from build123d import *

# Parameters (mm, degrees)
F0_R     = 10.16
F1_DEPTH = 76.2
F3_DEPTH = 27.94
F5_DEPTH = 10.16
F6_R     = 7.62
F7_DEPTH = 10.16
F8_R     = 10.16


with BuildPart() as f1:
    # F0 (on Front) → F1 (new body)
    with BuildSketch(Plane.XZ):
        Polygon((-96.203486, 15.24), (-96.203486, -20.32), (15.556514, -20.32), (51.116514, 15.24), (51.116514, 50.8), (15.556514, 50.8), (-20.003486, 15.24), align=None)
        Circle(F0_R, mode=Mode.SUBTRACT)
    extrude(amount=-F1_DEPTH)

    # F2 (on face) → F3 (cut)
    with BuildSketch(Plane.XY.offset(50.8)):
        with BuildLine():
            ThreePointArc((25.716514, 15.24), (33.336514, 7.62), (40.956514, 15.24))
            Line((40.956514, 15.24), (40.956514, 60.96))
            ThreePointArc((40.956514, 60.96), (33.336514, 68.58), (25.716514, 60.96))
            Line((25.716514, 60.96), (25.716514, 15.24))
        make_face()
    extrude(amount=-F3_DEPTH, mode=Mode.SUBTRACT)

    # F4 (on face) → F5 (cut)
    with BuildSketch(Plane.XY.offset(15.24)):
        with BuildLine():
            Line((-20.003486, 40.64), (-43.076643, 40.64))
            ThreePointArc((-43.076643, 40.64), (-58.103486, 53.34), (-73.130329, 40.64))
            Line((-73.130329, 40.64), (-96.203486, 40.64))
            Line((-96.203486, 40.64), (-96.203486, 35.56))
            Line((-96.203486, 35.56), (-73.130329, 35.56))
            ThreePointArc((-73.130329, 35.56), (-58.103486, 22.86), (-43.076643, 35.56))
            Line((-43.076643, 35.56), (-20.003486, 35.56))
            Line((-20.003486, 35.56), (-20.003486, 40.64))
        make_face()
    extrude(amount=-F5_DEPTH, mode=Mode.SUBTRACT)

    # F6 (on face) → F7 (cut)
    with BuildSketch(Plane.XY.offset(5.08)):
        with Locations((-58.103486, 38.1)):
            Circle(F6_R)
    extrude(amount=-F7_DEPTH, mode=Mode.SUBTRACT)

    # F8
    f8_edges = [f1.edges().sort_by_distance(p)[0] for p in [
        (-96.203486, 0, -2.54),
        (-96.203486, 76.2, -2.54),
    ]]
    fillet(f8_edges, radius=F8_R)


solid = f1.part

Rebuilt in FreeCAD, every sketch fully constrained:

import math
import FreeCAD as App
import Part
import Sketcher

V = App.Vector
Q = App.Units.Quantity


def edges_at(feature, points):
    """Names of the edges that pass closest to the given points."""
    edges = feature.Shape.Edges
    near = lambda p: min(range(len(edges)), key=lambda i: edges[i].distToShape(Part.Vertex(*p))[0])
    return sorted({f"Edge{near(p) + 1}" for p in points})


def add_polygon(sketch, points):
    """Adds a closed chain of lines whose ends are joined by coincident constraints."""
    first, n = sketch.GeometryCount, len(points)
    for a, b in zip(points, points[1:] + points[:1]):
        sketch.addGeometry(Part.LineSegment(App.Vector(*a, 0), App.Vector(*b, 0)), False)
    for i in range(n):
        sketch.addConstraint(Sketcher.Constraint("Coincident", first + i, 2, first + (i + 1) % n, 1))

doc = App.newDocument("Part")
body = doc.addObject("PartDesign::Body", "Body")

# Sketch on XZ plane
sketch1 = body.newObject("Sketcher::SketchObject", "Sketch")
sketch1.AttachmentSupport = (doc.getObject("XZ_Plane"), [""])
sketch1.MapMode = "FlatFace"
add_polygon(sketch1, [(-96, 15), (-96, -20), (16, -20), (51, 15), (51, 51), (16, 51), (-20, 15)])  # lines 0-6
sketch1.addGeometry(Part.Circle(V(0, 0, 0), V(0, 0, 1), 10), False)  # 7
sketch1.addConstraint(Sketcher.Constraint("Vertical", 0))
sketch1.addConstraint(Sketcher.Constraint("Horizontal", 1))
sketch1.addConstraint(Sketcher.Constraint("Vertical", 3))
sketch1.addConstraint(Sketcher.Constraint("Horizontal", 4))
sketch1.addConstraint(Sketcher.Constraint("Horizontal", 6))
sketch1.addConstraint(Sketcher.Constraint("Coincident", 7, 3, -1, 1))
sketch1.addConstraint(Sketcher.Constraint("Parallel", 2, 5))
sketch1.addConstraint(Sketcher.Constraint("Horizontal", 2, 2, 5, 2))
sketch1.addConstraint(Sketcher.Constraint("Vertical", 1, 2, 4, 2))
sketch1.addConstraint(Sketcher.Constraint("Equal", 4, 0))
sketch1.addConstraint(Sketcher.Constraint("Equal", 0, 3))
sketch1.addConstraint(Sketcher.Constraint("Diameter", 7, Q("0.8 in")))
sketch1.addConstraint(Sketcher.Constraint("DistanceX", 6, 2, 6, 1, Q("3 in")))
sketch1.addConstraint(Sketcher.Constraint("DistanceX", 1, 1, 1, 2, Q("4.4 in")))
sketch1.addConstraint(Sketcher.Constraint("DistanceY", -1, 1, 3, 2, Q("2 in")))
sketch1.addConstraint(Sketcher.Constraint("DistanceX", 0, 2, -1, 1, Q("96.203486 mm")))
pad1 = body.newObject("PartDesign::Pad", "Pad")
pad1.Profile = sketch1
pad1.Length = Q("3 in")
pad1.Reversed = True

# Sketch on XY plane
sketch2 = body.newObject("Sketcher::SketchObject", "Sketch001")
sketch2.AttachmentSupport = (doc.getObject("XY_Plane"), [""])
sketch2.MapMode = "FlatFace"
sketch2.AttachmentOffset = App.Placement(V(0, 0, 2 * 25.4), App.Rotation())
sketch2.addGeometry(Part.ArcOfCircle(Part.Circle(V(33, 15, 0), V(0, 0, 1), 8), math.radians(180), math.radians(360)), False)
sketch2.addGeometry(Part.LineSegment(V(41, 15, 0), V(41, 61, 0)), False)
sketch2.addGeometry(Part.ArcOfCircle(Part.Circle(V(33, 61, 0), V(0, 0, 1), 8), math.radians(0), math.radians(180)), False)
sketch2.addGeometry(Part.LineSegment(V(26, 61, 0), V(26, 15, 0)), False)
sketch2.addConstraint(Sketcher.Constraint("Tangent", 0, 2, 1, 1))
sketch2.addConstraint(Sketcher.Constraint("Tangent", 1, 2, 2, 1))
sketch2.addConstraint(Sketcher.Constraint("Tangent", 2, 2, 3, 1))
sketch2.addConstraint(Sketcher.Constraint("Tangent", 3, 2, 0, 1))
sketch2.addConstraint(Sketcher.Constraint("Vertical", 1))
sketch2.addConstraint(Sketcher.Constraint("Vertical", 3))
sketch2.addConstraint(Sketcher.Constraint("Radius", 0, Q("0.3 in")))
sketch2.addConstraint(Sketcher.Constraint("DistanceY", 1, 1, 1, 2, Q("1.8 in")))
sketch2.addConstraint(Sketcher.Constraint("DistanceY", -1, 1, 0, 3, Q("0.6 in")))
sketch2.addConstraint(Sketcher.Constraint("DistanceX", -1, 1, 0, 3, Q("33.336514 mm")))
pocket1 = body.newObject("PartDesign::Pocket", "Pocket")
pocket1.Profile = sketch2
pocket1.Length = Q("1.1 in")

# Sketch on XY plane
sketch3 = body.newObject("Sketcher::SketchObject", "Sketch002")
sketch3.AttachmentSupport = (doc.getObject("XY_Plane"), [""])
sketch3.MapMode = "FlatFace"
sketch3.AttachmentOffset = App.Placement(V(0, 0, 0.6 * 25.4), App.Rotation())
sketch3.addGeometry(Part.LineSegment(V(-20, 41, 0), V(-43, 41, 0)), False)
sketch3.addGeometry(Part.ArcOfCircle(Part.Circle(V(-58, 38, 0), V(0, 0, 1), 15), math.radians(10), math.radians(170)), False)
sketch3.addGeometry(Part.LineSegment(V(-73, 41, 0), V(-96, 41, 0)), False)
sketch3.addGeometry(Part.LineSegment(V(-96, 41, 0), V(-96, 36, 0)), False)
sketch3.addGeometry(Part.LineSegment(V(-96, 36, 0), V(-73, 36, 0)), False)
sketch3.addGeometry(Part.ArcOfCircle(Part.Circle(V(-58, 38, 0), V(0, 0, 1), 15), math.radians(-170), math.radians(-10)), False)
sketch3.addGeometry(Part.LineSegment(V(-43, 36, 0), V(-20, 36, 0)), False)
sketch3.addGeometry(Part.LineSegment(V(-20, 36, 0), V(-20, 41, 0)), False)
sketch3.addConstraint(Sketcher.Constraint("Coincident", 0, 2, 1, 1))
sketch3.addConstraint(Sketcher.Constraint("Coincident", 1, 2, 2, 1))
sketch3.addConstraint(Sketcher.Constraint("Coincident", 2, 2, 3, 1))
sketch3.addConstraint(Sketcher.Constraint("Coincident", 3, 2, 4, 1))
sketch3.addConstraint(Sketcher.Constraint("Coincident", 4, 2, 5, 1))
sketch3.addConstraint(Sketcher.Constraint("Coincident", 5, 2, 6, 1))
sketch3.addConstraint(Sketcher.Constraint("Coincident", 6, 2, 7, 1))
sketch3.addConstraint(Sketcher.Constraint("Coincident", 7, 2, 0, 1))
sketch3.addConstraint(Sketcher.Constraint("Horizontal", 0))
sketch3.addConstraint(Sketcher.Constraint("Horizontal", 2))
sketch3.addConstraint(Sketcher.Constraint("Vertical", 3))
sketch3.addConstraint(Sketcher.Constraint("Horizontal", 4))
sketch3.addConstraint(Sketcher.Constraint("Horizontal", 6))
sketch3.addConstraint(Sketcher.Constraint("Vertical", 7))
sketch3.addConstraint(Sketcher.Constraint("Coincident", 5, 3, 1, 3))
sketch3.addConstraint(Sketcher.Constraint("Equal", 1, 5))
sketch3.addConstraint(Sketcher.Constraint("Horizontal", 0, 2, 1, 2))
sketch3.addConstraint(Sketcher.Constraint("Horizontal", 4, 2, 5, 2))
sketch3.addConstraint(Sketcher.Constraint("Vertical", 1, 2, 4, 2))
sketch3.addConstraint(Sketcher.Constraint("Equal", 0, 2))
sketch3.addConstraint(Sketcher.Constraint("Radius", 1, Q("0.6 in")))
sketch3.addConstraint(Sketcher.Constraint("DistanceY", 3, 2, 3, 1, Q("0.2 in")))
sketch3.addConstraint(Sketcher.Constraint("DistanceY", -1, 1, 1, 3, Q("1.5 in")))
sketch3.addConstraint(Sketcher.Constraint("DistanceX", 2, 2, 5, 3, Q("1.5 in")))
sketch3.addConstraint(Sketcher.Constraint("DistanceX", 1, 2, -1, 1, Q("73.130329 mm")))
pocket2 = body.newObject("PartDesign::Pocket", "Pocket001")
pocket2.Profile = sketch3
pocket2.Length = Q("0.4 in")

# Sketch on XY plane
sketch4 = body.newObject("Sketcher::SketchObject", "Sketch003")
sketch4.AttachmentSupport = (doc.getObject("XY_Plane"), [""])
sketch4.MapMode = "FlatFace"
sketch4.AttachmentOffset = App.Placement(V(0, 0, 0.2 * 25.4), App.Rotation())
sketch4.addGeometry(Part.Circle(V(-58, 38, 0), V(0, 0, 1), 8), False)
sketch4.addConstraint(Sketcher.Constraint("Diameter", 0, Q("0.6 in")))
sketch4.addConstraint(Sketcher.Constraint("DistanceY", -1, 1, 0, 3, Q("1.5 in")))
sketch4.addConstraint(Sketcher.Constraint("DistanceX", 0, 3, -1, 1, Q("58.103486 mm")))
pocket3 = body.newObject("PartDesign::Pocket", "Pocket002")
pocket3.Profile = sketch4
pocket3.Length = Q("0.4 in")
doc.recompute()

fillet = body.newObject("PartDesign::Fillet", "Fillet")
fillet.Base = (pocket3, edges_at(pocket3, [(-96.203, 0, -2.54), (-96.203, 76.2, -2.54)]))
fillet.Radius = Q("0.4 in")

doc.recompute()
